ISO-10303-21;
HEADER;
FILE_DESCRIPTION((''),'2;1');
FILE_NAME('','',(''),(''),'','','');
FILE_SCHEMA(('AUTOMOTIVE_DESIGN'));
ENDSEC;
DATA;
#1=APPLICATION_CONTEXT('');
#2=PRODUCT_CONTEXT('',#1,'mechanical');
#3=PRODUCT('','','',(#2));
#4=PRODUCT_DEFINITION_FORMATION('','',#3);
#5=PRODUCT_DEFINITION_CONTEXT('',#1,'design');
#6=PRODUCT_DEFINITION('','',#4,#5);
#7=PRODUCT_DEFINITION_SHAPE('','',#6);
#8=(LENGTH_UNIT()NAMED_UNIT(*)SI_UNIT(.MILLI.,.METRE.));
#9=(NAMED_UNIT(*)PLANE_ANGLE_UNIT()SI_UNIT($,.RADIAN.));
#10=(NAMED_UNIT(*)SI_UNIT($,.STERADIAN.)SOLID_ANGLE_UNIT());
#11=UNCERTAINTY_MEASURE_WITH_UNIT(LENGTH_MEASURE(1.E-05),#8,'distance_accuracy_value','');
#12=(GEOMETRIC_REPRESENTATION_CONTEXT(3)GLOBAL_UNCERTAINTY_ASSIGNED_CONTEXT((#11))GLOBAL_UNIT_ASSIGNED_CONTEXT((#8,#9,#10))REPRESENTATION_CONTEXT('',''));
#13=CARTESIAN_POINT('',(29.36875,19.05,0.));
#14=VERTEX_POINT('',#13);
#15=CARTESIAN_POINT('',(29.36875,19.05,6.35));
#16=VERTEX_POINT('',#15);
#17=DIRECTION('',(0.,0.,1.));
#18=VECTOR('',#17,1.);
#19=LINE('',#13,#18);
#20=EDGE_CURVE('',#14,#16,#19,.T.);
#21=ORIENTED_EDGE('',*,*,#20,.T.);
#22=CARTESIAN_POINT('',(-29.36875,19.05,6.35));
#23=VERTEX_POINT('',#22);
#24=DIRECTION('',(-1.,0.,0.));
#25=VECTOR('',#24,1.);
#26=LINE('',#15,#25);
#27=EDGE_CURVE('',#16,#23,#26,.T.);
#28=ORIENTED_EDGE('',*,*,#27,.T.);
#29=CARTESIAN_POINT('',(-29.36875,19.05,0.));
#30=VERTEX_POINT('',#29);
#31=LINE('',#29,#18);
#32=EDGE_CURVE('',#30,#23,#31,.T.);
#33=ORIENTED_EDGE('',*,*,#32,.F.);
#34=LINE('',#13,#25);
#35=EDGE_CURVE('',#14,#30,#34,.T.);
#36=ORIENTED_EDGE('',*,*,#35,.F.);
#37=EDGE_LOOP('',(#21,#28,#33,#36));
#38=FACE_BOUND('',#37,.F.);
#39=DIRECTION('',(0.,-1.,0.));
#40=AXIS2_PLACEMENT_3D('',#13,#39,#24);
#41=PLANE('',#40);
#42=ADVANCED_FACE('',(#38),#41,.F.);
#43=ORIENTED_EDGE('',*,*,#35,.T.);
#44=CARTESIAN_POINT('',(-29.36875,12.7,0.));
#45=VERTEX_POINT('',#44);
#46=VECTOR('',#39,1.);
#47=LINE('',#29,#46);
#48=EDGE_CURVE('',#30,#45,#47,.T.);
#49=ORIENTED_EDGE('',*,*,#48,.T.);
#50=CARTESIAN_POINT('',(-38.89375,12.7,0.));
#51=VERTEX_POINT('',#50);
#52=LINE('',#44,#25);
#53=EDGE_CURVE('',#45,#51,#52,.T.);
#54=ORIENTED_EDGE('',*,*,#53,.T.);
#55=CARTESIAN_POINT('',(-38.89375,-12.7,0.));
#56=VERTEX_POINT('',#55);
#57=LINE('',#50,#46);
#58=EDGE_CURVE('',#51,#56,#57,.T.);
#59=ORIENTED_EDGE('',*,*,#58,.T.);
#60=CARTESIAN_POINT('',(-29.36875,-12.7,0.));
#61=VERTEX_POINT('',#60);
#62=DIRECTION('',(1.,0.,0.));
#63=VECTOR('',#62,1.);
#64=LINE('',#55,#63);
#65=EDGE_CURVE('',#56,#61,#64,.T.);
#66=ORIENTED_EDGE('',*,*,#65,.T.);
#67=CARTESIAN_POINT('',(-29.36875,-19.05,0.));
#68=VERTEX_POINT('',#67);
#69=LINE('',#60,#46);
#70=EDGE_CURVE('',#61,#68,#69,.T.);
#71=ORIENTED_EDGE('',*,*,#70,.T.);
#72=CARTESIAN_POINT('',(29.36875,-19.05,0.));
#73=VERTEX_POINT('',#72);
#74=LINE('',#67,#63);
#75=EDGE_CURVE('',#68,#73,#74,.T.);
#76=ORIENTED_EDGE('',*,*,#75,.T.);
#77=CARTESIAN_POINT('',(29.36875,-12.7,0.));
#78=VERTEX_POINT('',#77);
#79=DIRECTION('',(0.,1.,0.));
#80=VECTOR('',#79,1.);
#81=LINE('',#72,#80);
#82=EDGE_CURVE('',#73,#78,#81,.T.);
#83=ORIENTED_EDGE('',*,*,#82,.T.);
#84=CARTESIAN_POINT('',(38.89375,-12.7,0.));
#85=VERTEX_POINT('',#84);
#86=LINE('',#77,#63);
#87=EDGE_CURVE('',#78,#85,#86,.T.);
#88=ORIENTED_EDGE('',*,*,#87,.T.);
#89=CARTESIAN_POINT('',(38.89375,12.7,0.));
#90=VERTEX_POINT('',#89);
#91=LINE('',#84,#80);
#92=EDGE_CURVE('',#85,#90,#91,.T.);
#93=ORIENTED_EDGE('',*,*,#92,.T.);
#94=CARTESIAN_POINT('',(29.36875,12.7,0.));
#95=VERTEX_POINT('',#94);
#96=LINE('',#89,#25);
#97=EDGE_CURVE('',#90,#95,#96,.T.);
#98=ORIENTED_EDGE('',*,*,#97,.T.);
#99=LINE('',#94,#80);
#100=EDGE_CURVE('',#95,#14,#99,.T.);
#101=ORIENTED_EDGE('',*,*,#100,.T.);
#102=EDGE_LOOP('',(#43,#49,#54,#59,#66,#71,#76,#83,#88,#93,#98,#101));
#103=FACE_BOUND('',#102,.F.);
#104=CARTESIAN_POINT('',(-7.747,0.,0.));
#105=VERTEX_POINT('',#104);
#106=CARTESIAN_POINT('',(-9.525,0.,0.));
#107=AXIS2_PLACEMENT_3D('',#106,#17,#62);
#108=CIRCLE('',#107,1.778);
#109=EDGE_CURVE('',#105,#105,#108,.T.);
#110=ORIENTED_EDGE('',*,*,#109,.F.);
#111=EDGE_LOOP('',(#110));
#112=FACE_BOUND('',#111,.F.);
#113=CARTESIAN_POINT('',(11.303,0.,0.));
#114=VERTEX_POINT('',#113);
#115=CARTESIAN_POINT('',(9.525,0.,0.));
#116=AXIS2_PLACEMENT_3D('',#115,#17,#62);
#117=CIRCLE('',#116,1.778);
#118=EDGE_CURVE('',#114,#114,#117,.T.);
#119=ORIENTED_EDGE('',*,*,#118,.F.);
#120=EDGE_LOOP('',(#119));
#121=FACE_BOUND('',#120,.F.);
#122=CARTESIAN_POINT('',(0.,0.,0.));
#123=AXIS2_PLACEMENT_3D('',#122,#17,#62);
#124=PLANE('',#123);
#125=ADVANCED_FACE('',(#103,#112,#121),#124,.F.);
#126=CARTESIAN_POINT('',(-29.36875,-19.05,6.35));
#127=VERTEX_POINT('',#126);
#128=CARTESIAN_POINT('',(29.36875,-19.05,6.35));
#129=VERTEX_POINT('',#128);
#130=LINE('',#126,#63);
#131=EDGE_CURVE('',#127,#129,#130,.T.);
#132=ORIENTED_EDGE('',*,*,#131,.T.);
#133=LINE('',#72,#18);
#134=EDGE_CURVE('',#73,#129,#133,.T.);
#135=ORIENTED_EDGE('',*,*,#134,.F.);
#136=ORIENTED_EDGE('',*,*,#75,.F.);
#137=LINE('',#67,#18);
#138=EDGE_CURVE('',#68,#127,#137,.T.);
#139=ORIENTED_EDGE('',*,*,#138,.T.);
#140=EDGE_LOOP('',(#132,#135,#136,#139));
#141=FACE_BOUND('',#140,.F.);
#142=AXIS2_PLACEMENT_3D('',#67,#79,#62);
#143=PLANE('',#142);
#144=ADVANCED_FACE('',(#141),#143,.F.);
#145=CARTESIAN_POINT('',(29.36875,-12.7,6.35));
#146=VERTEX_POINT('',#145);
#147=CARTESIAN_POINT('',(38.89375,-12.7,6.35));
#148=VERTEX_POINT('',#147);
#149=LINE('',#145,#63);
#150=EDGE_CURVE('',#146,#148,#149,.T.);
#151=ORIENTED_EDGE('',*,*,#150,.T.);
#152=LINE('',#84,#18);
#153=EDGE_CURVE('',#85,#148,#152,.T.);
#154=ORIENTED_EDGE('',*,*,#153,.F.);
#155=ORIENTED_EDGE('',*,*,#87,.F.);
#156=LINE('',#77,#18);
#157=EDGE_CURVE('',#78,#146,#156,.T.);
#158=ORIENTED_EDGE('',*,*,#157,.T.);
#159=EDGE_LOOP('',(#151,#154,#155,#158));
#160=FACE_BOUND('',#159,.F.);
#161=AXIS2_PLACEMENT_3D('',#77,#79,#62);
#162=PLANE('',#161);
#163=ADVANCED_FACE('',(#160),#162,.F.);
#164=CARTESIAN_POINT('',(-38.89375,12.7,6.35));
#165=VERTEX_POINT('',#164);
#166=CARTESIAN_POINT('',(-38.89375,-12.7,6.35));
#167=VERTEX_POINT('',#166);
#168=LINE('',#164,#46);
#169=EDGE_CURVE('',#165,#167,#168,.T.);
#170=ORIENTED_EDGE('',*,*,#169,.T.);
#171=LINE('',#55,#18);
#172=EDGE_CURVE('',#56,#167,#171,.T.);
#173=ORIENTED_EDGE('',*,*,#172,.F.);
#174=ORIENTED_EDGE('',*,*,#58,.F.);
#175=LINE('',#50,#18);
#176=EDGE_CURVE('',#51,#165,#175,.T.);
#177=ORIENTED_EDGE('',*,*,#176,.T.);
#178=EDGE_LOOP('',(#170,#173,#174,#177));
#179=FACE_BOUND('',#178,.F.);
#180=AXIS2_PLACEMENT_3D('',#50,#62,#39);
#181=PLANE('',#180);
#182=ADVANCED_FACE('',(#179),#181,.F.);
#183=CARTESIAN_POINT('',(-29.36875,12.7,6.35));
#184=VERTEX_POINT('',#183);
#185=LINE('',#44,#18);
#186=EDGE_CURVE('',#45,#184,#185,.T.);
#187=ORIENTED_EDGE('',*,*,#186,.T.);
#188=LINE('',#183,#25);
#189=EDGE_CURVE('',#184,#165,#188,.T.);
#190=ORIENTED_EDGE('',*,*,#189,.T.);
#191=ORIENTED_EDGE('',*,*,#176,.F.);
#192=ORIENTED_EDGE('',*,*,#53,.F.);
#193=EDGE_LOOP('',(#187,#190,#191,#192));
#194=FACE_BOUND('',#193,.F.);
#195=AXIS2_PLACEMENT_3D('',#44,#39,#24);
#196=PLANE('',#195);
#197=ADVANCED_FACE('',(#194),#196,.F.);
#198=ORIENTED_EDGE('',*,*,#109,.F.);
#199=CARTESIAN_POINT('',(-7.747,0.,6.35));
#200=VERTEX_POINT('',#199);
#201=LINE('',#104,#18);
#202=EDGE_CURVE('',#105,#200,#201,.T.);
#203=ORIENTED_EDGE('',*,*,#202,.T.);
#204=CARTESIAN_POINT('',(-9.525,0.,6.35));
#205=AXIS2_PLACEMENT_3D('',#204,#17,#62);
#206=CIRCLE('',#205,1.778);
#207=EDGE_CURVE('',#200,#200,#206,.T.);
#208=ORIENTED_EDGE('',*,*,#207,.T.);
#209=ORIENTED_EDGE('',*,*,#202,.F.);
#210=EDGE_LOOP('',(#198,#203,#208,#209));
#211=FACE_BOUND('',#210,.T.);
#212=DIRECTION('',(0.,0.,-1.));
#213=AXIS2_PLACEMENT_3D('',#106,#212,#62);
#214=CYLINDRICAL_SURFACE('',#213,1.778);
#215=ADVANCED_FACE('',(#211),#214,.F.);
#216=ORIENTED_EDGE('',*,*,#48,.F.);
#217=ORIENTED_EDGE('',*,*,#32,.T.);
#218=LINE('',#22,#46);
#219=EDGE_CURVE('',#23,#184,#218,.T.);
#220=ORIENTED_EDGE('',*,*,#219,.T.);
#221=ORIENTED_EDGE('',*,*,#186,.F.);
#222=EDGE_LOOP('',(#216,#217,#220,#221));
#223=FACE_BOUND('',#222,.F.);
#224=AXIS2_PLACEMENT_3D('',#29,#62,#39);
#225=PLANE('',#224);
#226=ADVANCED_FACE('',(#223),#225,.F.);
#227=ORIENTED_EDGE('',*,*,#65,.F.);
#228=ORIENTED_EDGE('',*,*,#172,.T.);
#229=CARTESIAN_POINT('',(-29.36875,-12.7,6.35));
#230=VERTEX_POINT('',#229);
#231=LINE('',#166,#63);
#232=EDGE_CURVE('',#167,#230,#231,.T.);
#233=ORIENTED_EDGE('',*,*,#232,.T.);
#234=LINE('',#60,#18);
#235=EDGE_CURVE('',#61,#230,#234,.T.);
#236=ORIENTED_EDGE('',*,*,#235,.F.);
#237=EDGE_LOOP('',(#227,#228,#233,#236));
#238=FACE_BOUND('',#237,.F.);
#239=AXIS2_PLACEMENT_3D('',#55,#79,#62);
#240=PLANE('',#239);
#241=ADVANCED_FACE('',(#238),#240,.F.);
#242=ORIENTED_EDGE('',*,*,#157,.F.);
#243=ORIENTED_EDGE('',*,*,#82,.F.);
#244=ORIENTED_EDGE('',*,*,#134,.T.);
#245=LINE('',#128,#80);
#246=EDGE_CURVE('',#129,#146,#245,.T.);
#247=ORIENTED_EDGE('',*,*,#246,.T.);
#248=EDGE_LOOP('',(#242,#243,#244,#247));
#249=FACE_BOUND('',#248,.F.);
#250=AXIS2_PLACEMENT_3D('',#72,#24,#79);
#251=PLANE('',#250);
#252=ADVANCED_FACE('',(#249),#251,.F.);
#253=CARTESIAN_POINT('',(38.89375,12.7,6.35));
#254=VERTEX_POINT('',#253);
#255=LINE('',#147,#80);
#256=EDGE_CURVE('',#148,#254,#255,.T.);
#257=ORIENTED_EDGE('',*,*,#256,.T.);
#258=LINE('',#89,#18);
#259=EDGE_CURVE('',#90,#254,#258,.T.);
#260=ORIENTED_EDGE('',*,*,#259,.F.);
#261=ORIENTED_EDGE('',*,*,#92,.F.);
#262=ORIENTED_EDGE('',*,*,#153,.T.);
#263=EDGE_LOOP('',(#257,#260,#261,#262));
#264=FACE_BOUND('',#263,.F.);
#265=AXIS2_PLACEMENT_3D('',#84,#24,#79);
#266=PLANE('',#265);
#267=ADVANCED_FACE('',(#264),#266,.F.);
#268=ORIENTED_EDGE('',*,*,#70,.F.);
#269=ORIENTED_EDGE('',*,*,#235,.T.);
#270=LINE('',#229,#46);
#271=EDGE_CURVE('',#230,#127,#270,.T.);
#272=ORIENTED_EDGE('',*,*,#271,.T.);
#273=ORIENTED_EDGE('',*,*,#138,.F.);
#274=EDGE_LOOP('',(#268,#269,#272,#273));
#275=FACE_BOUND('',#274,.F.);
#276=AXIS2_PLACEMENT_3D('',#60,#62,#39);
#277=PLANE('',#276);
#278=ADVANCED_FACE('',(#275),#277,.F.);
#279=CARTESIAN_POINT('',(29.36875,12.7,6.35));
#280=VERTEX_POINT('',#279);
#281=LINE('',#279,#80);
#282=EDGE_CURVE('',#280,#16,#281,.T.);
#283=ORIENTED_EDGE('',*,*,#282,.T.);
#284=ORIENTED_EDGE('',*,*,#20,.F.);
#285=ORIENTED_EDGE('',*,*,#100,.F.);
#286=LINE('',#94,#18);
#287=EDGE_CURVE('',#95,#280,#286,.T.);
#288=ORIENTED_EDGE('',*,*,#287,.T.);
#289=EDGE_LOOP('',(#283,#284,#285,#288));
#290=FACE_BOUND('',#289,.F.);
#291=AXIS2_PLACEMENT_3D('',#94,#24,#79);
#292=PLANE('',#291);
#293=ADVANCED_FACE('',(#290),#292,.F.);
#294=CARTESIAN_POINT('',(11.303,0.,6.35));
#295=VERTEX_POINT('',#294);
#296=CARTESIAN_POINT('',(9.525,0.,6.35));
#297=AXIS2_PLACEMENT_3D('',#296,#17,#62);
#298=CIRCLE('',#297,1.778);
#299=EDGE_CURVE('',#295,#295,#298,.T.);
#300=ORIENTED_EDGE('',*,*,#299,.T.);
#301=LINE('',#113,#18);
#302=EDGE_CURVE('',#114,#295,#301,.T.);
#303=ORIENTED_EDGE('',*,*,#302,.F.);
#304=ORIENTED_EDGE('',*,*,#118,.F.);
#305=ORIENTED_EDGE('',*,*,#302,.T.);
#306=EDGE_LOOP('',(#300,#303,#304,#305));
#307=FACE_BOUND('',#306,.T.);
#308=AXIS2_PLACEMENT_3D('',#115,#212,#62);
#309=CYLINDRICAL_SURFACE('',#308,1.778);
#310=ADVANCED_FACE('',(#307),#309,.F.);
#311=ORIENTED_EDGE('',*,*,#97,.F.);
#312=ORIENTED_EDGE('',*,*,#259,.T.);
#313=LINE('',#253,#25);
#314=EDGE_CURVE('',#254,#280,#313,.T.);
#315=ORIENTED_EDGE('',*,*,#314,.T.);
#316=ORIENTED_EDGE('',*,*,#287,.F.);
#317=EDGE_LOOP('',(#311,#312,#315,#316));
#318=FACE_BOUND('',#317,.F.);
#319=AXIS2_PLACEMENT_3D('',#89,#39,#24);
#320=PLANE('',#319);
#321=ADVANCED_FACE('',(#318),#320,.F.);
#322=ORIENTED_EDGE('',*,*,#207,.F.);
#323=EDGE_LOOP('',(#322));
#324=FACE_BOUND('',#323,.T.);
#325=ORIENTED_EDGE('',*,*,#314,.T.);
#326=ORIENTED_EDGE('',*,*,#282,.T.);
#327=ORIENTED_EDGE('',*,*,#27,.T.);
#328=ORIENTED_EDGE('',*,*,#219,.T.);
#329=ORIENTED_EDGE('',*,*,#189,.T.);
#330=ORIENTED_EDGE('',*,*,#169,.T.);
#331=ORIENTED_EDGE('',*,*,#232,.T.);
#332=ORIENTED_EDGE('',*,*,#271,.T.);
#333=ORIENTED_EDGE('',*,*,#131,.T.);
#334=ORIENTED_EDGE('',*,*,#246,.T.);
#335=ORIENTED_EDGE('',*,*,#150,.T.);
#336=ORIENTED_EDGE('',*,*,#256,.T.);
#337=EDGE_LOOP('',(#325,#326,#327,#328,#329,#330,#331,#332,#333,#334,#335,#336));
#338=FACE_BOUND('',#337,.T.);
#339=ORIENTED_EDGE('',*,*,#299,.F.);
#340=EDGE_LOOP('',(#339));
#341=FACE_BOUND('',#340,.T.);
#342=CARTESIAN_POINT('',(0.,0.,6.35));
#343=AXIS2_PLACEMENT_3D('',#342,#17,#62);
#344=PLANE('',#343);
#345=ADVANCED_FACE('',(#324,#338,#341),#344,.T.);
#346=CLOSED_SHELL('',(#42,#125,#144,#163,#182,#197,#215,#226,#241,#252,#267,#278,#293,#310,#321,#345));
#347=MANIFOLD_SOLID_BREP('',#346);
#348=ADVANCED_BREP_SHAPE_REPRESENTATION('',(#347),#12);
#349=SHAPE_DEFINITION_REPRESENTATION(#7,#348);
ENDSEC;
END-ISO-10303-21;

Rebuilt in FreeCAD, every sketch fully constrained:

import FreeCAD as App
import Part
import Sketcher
Q = App.Units.Quantity

doc = App.newDocument("Part")
params = doc.addObject("Spreadsheet::Sheet", "Params")
for row, (alias, value) in enumerate([
    ("sketch1_diameter", "0.14 in"),
    ("sketch1_height", "1 in"),
    ("sketch1_height2", "0.25 in"),
    ("sketch1_width", "0.375 in"),
    ("sketch1_width2", "2.3125 in"),
    ("pad1_length", "0.25 in"),
], start=1):
    params.set(f"A{row}", alias)
    params.set(f"B{row}", "=" + value)
    params.setAlias(f"B{row}", alias)

body = doc.addObject("PartDesign::Body", "Body")

# Sketch on XY plane
sketch1 = body.newObject("Sketcher::SketchObject", "Sketch")
sketch1.AttachmentSupport = (doc.getObject("XY_Plane"), [""])
sketch1.MapMode = "FlatFace"
sketch1.addGeometry(Part.LineSegment(App.Vector(29.4, -12.7, 0), App.Vector(38.9, -12.7, 0)), False)
sketch1.addGeometry(Part.LineSegment(App.Vector(38.9, -12.7, 0), App.Vector(38.9, 12.7, 0)), False)
sketch1.addGeometry(Part.LineSegment(App.Vector(38.9, 12.7, 0), App.Vector(29.4, 12.7, 0)), False)
sketch1.addGeometry(Part.LineSegment(App.Vector(29.4, 12.7, 0), App.Vector(29.4, 19.1, 0)), False)
sketch1.addGeometry(Part.LineSegment(App.Vector(29.4, 19.1, 0), App.Vector(-29.4, 19.1, 0)), False)
sketch1.addGeometry(Part.LineSegment(App.Vector(-29.4, 19.1, 0), App.Vector(-29.4, 12.7, 0)), False)
sketch1.addGeometry(Part.LineSegment(App.Vector(-29.4, 12.7, 0), App.Vector(-38.9, 12.7, 0)), False)
sketch1.addGeometry(Part.LineSegment(App.Vector(-38.9, 12.7, 0), App.Vector(-38.9, -12.7, 0)), False)
sketch1.addGeometry(Part.LineSegment(App.Vector(-38.9, -12.7, 0), App.Vector(-29.4, -12.7, 0)), False)
sketch1.addGeometry(Part.LineSegment(App.Vector(-29.4, -12.7, 0), App.Vector(-29.4, -19.1, 0)), False)
sketch1.addGeometry(Part.LineSegment(App.Vector(-29.4, -19.1, 0), App.Vector(29.4, -19.1, 0)), False)
sketch1.addGeometry(Part.LineSegment(App.Vector(29.4, -19.1, 0), App.Vector(29.4, -12.7, 0)), False)
sketch1.addGeometry(Part.Circle(App.Vector(-9.5, 0, 0), App.Vector(0, 0, 1), 1.8), False)
sketch1.addGeometry(Part.Circle(App.Vector(9.5, 0, 0), App.Vector(0, 0, 1), 1.8), False)
sketch1.addConstraint(Sketcher.Constraint("Coincident", 0, 2, 1, 1))
sketch1.addConstraint(Sketcher.Constraint("Coincident", 1, 2, 2, 1))
sketch1.addConstraint(Sketcher.Constraint("Coincident", 2, 2, 3, 1))
sketch1.addConstraint(Sketcher.Constraint("Coincident", 3, 2, 4, 1))
sketch1.addConstraint(Sketcher.Constraint("Coincident", 4, 2, 5, 1))
sketch1.addConstraint(Sketcher.Constraint("Coincident", 5, 2, 6, 1))
sketch1.addConstraint(Sketcher.Constraint("Coincident", 6, 2, 7, 1))
sketch1.addConstraint(Sketcher.Constraint("Coincident", 7, 2, 8, 1))
sketch1.addConstraint(Sketcher.Constraint("Coincident", 8, 2, 9, 1))
sketch1.addConstraint(Sketcher.Constraint("Coincident", 9, 2, 10, 1))
sketch1.addConstraint(Sketcher.Constraint("Coincident", 10, 2, 11, 1))
sketch1.addConstraint(Sketcher.Constraint("Coincident", 11, 2, 0, 1))
sketch1.addConstraint(Sketcher.Constraint("Horizontal", 0))
sketch1.addConstraint(Sketcher.Constraint("Vertical", 1))
sketch1.addConstraint(Sketcher.Constraint("Horizontal", 2))
sketch1.addConstraint(Sketcher.Constraint("Vertical", 3))
sketch1.addConstraint(Sketcher.Constraint("Horizontal", 4))
sketch1.addConstraint(Sketcher.Constraint("Vertical", 5))
sketch1.addConstraint(Sketcher.Constraint("Horizontal", 6))
sketch1.addConstraint(Sketcher.Constraint("Vertical", 7))
sketch1.addConstraint(Sketcher.Constraint("Horizontal", 8))
sketch1.addConstraint(Sketcher.Constraint("Vertical", 9))
sketch1.addConstraint(Sketcher.Constraint("Horizontal", 10))
sketch1.addConstraint(Sketcher.Constraint("Vertical", 11))
sketch1.addConstraint(Sketcher.Constraint("Equal", 12, 13))
sketch1.addConstraint(Sketcher.Constraint("Symmetric", 12, 3, 13, 3, -1, 1))
sketch1.addConstraint(Sketcher.Constraint("Symmetric", 0, 2, 6, 2, -1, 1))
sketch1.addConstraint(Sketcher.Constraint("Symmetric", 2, 2, 8, 2, -1, 1))
sketch1.addConstraint(Sketcher.Constraint("Symmetric", 4, 2, 10, 2, -1, 1))
sketch1.addConstraint(Sketcher.Constraint("Symmetric", 2, 2, 5, 2, -2))
sketch1.addConstraint(Sketcher.Constraint("PointOnObject", 12, 3, -1))
sketch1.addConstraint(Sketcher.Constraint("Diameter", 12, Q("0.14 in")))
sketch1.addConstraint(Sketcher.Constraint("DistanceY", 1, 1, 1, 2, Q("1 in")))
sketch1.addConstraint(Sketcher.Constraint("DistanceY", 3, 1, 3, 2, Q("0.25 in")))
sketch1.addConstraint(Sketcher.Constraint("DistanceX", 0, 1, 0, 2, Q("0.375 in")))
sketch1.addConstraint(Sketcher.Constraint("DistanceX", 4, 2, 4, 1, Q("2.3125 in")))
sketch1.addConstraint(Sketcher.Constraint("DistanceX", 12, 3, 13, 3, Q("0.75 in")))
sketch1.setExpression("Constraints[31]", "Params.sketch1_diameter")
sketch1.setExpression("Constraints[32]", "Params.sketch1_height")
sketch1.setExpression("Constraints[33]", "Params.sketch1_height2")
sketch1.setExpression("Constraints[34]", "Params.sketch1_width")
sketch1.setExpression("Constraints[35]", "Params.sketch1_width2")
pad1 = body.newObject("PartDesign::Pad", "Pad")
pad1.Profile = sketch1
pad1.setExpression("Length", "Params.pad1_length")

doc.recompute()
